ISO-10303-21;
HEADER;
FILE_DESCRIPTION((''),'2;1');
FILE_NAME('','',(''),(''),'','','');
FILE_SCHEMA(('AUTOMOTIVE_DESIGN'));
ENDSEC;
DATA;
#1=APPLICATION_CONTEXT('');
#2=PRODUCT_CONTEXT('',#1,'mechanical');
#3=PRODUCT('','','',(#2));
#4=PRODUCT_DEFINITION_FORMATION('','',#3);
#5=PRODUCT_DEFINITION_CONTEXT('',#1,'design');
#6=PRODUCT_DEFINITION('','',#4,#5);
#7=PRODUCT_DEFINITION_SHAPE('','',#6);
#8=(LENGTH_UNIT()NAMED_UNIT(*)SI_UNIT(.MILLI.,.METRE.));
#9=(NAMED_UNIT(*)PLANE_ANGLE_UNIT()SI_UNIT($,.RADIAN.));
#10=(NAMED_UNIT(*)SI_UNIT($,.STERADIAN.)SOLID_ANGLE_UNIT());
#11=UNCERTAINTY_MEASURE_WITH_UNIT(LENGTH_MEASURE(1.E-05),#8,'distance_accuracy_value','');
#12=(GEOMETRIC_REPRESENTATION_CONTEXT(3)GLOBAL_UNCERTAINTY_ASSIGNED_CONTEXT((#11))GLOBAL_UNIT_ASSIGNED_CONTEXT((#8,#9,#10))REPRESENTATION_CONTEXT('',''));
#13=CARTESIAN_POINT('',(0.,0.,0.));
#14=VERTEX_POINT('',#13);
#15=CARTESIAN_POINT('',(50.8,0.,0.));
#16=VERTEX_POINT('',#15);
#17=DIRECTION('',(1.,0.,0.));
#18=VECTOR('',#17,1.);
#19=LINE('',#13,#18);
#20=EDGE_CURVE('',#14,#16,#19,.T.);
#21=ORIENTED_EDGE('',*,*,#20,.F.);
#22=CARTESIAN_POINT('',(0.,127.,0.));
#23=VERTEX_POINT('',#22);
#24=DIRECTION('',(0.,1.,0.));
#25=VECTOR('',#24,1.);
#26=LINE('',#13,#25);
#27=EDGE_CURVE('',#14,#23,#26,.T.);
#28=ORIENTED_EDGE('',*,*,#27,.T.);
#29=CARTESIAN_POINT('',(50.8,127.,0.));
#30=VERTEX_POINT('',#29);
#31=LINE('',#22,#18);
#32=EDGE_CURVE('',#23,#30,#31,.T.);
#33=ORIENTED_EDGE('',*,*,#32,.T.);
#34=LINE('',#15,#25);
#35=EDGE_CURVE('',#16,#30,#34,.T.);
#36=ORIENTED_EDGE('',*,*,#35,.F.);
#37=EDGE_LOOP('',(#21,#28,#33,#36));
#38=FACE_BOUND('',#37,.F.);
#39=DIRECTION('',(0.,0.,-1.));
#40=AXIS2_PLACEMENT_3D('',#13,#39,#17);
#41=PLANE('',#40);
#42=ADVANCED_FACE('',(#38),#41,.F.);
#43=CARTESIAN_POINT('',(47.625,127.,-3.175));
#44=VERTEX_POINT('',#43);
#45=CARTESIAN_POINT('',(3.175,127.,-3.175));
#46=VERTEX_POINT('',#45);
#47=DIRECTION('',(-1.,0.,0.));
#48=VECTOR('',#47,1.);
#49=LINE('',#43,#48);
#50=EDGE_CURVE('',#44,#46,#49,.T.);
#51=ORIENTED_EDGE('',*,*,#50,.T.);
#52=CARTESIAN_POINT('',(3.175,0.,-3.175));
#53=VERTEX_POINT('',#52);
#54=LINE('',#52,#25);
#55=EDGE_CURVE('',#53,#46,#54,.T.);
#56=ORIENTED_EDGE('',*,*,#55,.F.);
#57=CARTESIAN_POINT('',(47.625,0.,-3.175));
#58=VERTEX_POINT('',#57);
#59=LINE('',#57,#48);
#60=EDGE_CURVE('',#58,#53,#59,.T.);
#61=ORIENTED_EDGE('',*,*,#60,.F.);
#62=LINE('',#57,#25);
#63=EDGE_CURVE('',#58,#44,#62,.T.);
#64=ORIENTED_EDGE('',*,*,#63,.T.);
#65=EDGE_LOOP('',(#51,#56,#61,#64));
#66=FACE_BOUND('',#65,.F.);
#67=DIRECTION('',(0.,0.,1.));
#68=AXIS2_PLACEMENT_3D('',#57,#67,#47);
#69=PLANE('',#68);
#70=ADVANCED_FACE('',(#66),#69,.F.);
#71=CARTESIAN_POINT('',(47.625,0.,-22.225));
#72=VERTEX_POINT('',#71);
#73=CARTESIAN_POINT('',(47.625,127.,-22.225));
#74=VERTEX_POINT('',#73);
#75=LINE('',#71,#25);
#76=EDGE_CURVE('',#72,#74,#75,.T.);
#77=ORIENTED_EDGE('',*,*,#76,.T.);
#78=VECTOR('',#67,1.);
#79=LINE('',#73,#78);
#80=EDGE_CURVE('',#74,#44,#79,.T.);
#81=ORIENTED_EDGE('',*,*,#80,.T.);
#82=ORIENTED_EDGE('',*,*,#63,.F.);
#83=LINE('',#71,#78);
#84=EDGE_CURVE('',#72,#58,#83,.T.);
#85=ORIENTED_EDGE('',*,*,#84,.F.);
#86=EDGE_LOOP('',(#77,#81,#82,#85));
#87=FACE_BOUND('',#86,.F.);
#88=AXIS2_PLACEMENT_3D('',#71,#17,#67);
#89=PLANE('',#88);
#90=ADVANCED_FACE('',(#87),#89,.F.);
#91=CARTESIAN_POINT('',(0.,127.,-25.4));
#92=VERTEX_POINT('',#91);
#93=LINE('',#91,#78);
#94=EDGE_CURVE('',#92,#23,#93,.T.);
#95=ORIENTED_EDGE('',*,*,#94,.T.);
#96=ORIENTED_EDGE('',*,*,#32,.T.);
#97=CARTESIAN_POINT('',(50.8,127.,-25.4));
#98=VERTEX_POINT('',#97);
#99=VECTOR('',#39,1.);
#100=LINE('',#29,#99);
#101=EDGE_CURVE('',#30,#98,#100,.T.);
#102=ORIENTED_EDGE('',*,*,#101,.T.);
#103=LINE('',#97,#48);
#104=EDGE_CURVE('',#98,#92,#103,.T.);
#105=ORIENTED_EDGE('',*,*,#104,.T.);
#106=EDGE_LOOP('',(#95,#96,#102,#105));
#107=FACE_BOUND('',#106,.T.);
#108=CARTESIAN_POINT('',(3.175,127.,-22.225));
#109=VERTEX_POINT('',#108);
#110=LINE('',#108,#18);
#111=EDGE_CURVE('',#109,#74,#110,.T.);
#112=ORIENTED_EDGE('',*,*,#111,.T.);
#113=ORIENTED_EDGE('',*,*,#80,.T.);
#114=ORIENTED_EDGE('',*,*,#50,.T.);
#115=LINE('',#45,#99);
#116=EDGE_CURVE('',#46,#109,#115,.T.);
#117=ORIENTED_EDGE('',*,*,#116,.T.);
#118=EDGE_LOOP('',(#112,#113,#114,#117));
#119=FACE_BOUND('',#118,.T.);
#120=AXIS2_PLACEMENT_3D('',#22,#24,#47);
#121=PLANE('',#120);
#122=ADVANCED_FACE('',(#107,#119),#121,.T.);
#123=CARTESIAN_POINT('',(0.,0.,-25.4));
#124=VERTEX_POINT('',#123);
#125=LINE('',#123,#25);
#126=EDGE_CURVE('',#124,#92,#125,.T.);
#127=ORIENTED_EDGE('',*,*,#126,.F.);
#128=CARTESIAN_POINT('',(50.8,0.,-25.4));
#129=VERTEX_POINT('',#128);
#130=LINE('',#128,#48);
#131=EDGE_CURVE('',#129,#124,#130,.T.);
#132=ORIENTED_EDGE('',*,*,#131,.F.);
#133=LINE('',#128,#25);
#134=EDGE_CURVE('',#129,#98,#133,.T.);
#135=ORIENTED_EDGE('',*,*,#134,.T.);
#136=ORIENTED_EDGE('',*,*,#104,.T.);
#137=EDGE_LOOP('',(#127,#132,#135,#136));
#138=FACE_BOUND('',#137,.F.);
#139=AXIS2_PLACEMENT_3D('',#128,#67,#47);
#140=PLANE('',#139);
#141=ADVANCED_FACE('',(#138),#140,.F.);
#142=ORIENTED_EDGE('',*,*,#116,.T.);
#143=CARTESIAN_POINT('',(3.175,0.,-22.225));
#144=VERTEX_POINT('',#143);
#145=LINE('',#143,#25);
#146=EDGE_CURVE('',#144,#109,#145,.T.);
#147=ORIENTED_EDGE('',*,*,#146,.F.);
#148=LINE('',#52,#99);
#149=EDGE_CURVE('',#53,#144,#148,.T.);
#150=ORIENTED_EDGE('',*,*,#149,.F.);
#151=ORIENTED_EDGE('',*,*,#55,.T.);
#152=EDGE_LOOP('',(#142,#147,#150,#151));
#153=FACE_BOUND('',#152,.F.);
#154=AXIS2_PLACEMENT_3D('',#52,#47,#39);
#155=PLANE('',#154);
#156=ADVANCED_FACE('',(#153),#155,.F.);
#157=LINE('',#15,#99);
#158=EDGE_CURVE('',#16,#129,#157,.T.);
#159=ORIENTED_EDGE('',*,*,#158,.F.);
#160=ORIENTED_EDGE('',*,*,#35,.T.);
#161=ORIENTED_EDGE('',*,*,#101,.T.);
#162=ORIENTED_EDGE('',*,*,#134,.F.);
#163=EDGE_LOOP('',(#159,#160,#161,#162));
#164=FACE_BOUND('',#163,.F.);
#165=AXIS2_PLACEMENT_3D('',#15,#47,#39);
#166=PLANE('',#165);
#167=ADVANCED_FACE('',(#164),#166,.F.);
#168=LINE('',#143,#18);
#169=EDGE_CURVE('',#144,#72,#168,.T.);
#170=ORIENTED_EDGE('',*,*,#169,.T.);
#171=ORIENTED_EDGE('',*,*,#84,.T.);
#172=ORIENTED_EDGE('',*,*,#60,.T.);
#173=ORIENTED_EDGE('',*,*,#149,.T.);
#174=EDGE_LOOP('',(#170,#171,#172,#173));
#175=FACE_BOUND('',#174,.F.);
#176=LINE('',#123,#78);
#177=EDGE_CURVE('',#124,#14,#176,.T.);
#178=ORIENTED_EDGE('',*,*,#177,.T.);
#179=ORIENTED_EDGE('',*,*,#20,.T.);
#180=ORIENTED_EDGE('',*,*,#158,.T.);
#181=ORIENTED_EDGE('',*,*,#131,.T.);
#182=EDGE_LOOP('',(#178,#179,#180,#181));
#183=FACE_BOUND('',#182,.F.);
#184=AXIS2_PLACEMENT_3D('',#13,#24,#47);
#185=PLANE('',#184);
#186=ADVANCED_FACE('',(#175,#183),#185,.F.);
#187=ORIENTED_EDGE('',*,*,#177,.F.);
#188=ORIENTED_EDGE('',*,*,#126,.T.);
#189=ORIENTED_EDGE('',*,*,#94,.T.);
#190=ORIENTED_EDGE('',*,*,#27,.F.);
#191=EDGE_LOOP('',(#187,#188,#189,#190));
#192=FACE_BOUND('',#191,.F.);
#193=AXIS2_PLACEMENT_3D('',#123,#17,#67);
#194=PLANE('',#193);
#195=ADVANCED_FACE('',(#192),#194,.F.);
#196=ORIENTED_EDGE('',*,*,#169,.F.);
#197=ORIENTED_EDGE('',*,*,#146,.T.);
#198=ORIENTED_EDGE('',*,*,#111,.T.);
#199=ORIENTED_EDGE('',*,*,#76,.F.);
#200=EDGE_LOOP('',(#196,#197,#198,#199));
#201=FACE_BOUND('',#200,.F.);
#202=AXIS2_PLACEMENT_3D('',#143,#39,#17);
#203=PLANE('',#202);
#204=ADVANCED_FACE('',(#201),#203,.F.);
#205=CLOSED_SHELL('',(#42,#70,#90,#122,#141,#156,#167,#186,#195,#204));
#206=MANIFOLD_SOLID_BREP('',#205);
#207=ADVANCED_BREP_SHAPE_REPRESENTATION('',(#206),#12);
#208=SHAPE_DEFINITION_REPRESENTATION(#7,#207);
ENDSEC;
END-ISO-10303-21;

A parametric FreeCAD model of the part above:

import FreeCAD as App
import Part
import Sketcher
Q = App.Units.Quantity


def add_polygon(sketch, points):
    """Adds a closed chain of lines whose ends are joined by coincident constraints."""
    first, n = sketch.GeometryCount, len(points)
    for a, b in zip(points, points[1:] + points[:1]):
        sketch.addGeometry(Part.LineSegment(App.Vector(*a, 0), App.Vector(*b, 0)), False)
    for i in range(n):
        sketch.addConstraint(Sketcher.Constraint("Coincident", first + i, 2, first + (i + 1) % n, 1))

doc = App.newDocument("Part")
params = doc.addObject("Spreadsheet::Sheet", "Params")
for row, (alias, value) in enumerate([
    ("sketch1_width", "2 in"),
    ("sketch1_height", "1 in"),
    ("pad1_length", "5 in"),
], start=1):
    params.set(f"A{row}", alias)
    params.set(f"B{row}", "=" + value)
    params.setAlias(f"B{row}", alias)

body = doc.addObject("PartDesign::Body", "Body")

# Sketch on XZ plane
sketch1 = body.newObject("Sketcher::SketchObject", "Sketch")
sketch1.AttachmentSupport = (doc.getObject("XZ_Plane"), [""])
sketch1.MapMode = "FlatFace"
add_polygon(sketch1, [(0, -25), (0, 0), (51, 0), (51, -25)])  # lines 0-3
add_polygon(sketch1, [(3, -3), (3, -22), (48, -22), (48, -3)])  # lines 4-7
sketch1.addConstraint([
    Sketcher.Constraint("Vertical", 0),
    Sketcher.Constraint("Horizontal", 1),
    Sketcher.Constraint("Vertical", 2),
    Sketcher.Constraint("Horizontal", 3),
    Sketcher.Constraint("Vertical", 4),
    Sketcher.Constraint("Horizontal", 5),
    Sketcher.Constraint("Vertical", 6),
    Sketcher.Constraint("Horizontal", 7),
    Sketcher.Constraint("Coincident", 0, 2, -1, 1),
    Sketcher.Constraint("DistanceX", 1, 1, 1, 2, Q("2 in")),
    Sketcher.Constraint("DistanceY", 0, 1, 0, 2, Q("1 in")),
    Sketcher.Constraint("DistanceX", -1, 1, 4, 2, Q("0.125 in")),
    Sketcher.Constraint("DistanceY", 6, 2, -1, 1, Q("0.125 in")),
    Sketcher.Constraint("DistanceY", 3, 2, 4, 2, Q("0.125 in")),
    Sketcher.Constraint("DistanceX", 5, 2, 2, 2, Q("0.125 in")),
])
sketch1.setExpression("Constraints[17]", "Params.sketch1_width")
sketch1.setExpression("Constraints[18]", "Params.sketch1_height")
pad1 = body.newObject("PartDesign::Pad", "Pad")
pad1.Profile = sketch1
pad1.setExpression("Length", "Params.pad1_length")
pad1.Reversed = True

doc.recompute()
